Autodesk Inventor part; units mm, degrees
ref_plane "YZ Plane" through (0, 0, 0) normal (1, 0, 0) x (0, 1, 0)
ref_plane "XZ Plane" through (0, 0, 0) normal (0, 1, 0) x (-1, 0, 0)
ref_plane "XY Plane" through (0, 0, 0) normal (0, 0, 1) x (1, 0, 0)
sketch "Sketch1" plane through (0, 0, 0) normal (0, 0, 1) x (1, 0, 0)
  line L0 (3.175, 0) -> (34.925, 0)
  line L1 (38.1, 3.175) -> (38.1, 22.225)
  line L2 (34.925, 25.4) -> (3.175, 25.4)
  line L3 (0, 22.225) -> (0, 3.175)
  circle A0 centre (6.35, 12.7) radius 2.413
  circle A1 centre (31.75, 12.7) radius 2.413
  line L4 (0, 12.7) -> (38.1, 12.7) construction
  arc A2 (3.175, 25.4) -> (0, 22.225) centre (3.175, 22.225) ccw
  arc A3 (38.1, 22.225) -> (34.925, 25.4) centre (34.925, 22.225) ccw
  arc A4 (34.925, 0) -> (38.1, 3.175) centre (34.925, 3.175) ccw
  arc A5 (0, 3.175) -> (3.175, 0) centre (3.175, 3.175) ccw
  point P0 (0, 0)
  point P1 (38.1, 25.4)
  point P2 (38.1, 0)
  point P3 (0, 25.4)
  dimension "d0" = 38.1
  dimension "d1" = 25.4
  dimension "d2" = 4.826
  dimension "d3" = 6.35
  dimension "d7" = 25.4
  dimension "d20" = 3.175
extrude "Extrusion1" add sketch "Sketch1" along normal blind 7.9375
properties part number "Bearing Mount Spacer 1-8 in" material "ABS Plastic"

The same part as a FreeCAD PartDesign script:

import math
import FreeCAD as App
import Part
import Sketcher
Q = App.Units.Quantity

doc = App.newDocument("Part")
params = doc.addObject("Spreadsheet::Sheet", "Params")
for row, (alias, value) in enumerate([
    ("sketch1_diameter", "0.19 in"),
    ("sketch1_radius", "0.125 in"),
    ("pad1_length", "0.3125 in"),
], start=1):
    params.set(f"A{row}", alias)
    params.set(f"B{row}", "=" + value)
    params.setAlias(f"B{row}", alias)

body = doc.addObject("PartDesign::Body", "Body")

sketch1 = doc.addObject("Sketcher::SketchObject", "Sketch")
body.addObject(sketch1)
sketch1.AttachmentSupport = (doc.XY_Plane, [""])
sketch1.MapMode = "FlatFace"
sketch1.addGeometry(Part.ArcOfCircle(Part.Circle(App.Vector(3.2, 3.2, 0), App.Vector(0, 0, 1), 3.2), math.radians(180), math.radians(270)), False)
sketch1.addGeometry(Part.LineSegment(App.Vector(3.2, 0, 0), App.Vector(34.9, 0, 0)), False)
sketch1.addGeometry(Part.ArcOfCircle(Part.Circle(App.Vector(34.9, 3.2, 0), App.Vector(0, 0, 1), 3.2), math.radians(-90), math.radians(0)), False)
sketch1.addGeometry(Part.LineSegment(App.Vector(38.1, 3.2, 0), App.Vector(38.1, 22.2, 0)), False)
sketch1.addGeometry(Part.ArcOfCircle(Part.Circle(App.Vector(34.9, 22.2, 0), App.Vector(0, 0, 1), 3.2), math.radians(0), math.radians(90)), False)
sketch1.addGeometry(Part.LineSegment(App.Vector(34.9, 25.4, 0), App.Vector(3.2, 25.4, 0)), False)
sketch1.addGeometry(Part.ArcOfCircle(Part.Circle(App.Vector(3.2, 22.2, 0), App.Vector(0, 0, 1), 3.2), math.radians(90), math.radians(180)), False)
sketch1.addGeometry(Part.LineSegment(App.Vector(0, 22.2, 0), App.Vector(0, 3.2, 0)), False)
sketch1.addGeometry(Part.Circle(App.Vector(6.3, 12.7, 0), App.Vector(0, 0, 1), 2.4), False)
sketch1.addGeometry(Part.Circle(App.Vector(31.8, 12.7, 0), App.Vector(0, 0, 1), 2.4), False)
sketch1.addConstraint(Sketcher.Constraint("Tangent", 0, 2, 1, 1))
sketch1.addConstraint(Sketcher.Constraint("Tangent", 1, 2, 2, 1))
sketch1.addConstraint(Sketcher.Constraint("Tangent", 2, 2, 3, 1))
sketch1.addConstraint(Sketcher.Constraint("Tangent", 3, 2, 4, 1))
sketch1.addConstraint(Sketcher.Constraint("Tangent", 4, 2, 5, 1))
sketch1.addConstraint(Sketcher.Constraint("Tangent", 5, 2, 6, 1))
sketch1.addConstraint(Sketcher.Constraint("Tangent", 6, 2, 7, 1))
sketch1.addConstraint(Sketcher.Constraint("Tangent", 7, 2, 0, 1))
sketch1.addConstraint(Sketcher.Constraint("Horizontal", 1))
sketch1.addConstraint(Sketcher.Constraint("Vertical", 3))
sketch1.addConstraint(Sketcher.Constraint("Horizontal", 5))
sketch1.addConstraint(Sketcher.Constraint("Vertical", 7))
sketch1.addConstraint(Sketcher.Constraint("Equal", 0, 2))
sketch1.addConstraint(Sketcher.Constraint("Equal", 2, 4))
sketch1.addConstraint(Sketcher.Constraint("Equal", 4, 6))
sketch1.addConstraint(Sketcher.Constraint("Equal", 8, 9))
sketch1.addConstraint(Sketcher.Constraint("PointOnObject", 0, 2, -1))
sketch1.addConstraint(Sketcher.Constraint("PointOnObject", 6, 2, -2))
sketch1.addConstraint(Sketcher.Constraint("Horizontal", 8, 3, 9, 3))
sketch1.addConstraint(Sketcher.Constraint("Diameter", 8, Q("0.19 in")))
sketch1.addConstraint(Sketcher.Constraint("DistanceY", -1, 1, 4, 2, Q("1 in")))
sketch1.addConstraint(Sketcher.Constraint("Radius", 0, Q("0.125 in")))
sketch1.addConstraint(Sketcher.Constraint("DistanceX", 8, 3, 9, 3, Q("1 in")))
sketch1.addConstraint(Sketcher.Constraint("DistanceX", -1, 1, 2, 2, Q("1.5 in")))
sketch1.addConstraint(Sketcher.Constraint("DistanceX", -1, 1, 8, 3, Q("0.25 in")))
sketch1.addConstraint(Sketcher.Constraint("DistanceY", -1, 1, 8, 3, Q("0.5 in")))
sketch1.setExpression("Constraints[19]", "Params.sketch1_diameter")
sketch1.setExpression("Constraints[21]", "Params.sketch1_radius")
pad1 = doc.addObject("PartDesign::Pad", "Pad")
body.addObject(pad1)
pad1.Profile = sketch1
pad1.setExpression("Length", "Params.pad1_length")

doc.recompute()
